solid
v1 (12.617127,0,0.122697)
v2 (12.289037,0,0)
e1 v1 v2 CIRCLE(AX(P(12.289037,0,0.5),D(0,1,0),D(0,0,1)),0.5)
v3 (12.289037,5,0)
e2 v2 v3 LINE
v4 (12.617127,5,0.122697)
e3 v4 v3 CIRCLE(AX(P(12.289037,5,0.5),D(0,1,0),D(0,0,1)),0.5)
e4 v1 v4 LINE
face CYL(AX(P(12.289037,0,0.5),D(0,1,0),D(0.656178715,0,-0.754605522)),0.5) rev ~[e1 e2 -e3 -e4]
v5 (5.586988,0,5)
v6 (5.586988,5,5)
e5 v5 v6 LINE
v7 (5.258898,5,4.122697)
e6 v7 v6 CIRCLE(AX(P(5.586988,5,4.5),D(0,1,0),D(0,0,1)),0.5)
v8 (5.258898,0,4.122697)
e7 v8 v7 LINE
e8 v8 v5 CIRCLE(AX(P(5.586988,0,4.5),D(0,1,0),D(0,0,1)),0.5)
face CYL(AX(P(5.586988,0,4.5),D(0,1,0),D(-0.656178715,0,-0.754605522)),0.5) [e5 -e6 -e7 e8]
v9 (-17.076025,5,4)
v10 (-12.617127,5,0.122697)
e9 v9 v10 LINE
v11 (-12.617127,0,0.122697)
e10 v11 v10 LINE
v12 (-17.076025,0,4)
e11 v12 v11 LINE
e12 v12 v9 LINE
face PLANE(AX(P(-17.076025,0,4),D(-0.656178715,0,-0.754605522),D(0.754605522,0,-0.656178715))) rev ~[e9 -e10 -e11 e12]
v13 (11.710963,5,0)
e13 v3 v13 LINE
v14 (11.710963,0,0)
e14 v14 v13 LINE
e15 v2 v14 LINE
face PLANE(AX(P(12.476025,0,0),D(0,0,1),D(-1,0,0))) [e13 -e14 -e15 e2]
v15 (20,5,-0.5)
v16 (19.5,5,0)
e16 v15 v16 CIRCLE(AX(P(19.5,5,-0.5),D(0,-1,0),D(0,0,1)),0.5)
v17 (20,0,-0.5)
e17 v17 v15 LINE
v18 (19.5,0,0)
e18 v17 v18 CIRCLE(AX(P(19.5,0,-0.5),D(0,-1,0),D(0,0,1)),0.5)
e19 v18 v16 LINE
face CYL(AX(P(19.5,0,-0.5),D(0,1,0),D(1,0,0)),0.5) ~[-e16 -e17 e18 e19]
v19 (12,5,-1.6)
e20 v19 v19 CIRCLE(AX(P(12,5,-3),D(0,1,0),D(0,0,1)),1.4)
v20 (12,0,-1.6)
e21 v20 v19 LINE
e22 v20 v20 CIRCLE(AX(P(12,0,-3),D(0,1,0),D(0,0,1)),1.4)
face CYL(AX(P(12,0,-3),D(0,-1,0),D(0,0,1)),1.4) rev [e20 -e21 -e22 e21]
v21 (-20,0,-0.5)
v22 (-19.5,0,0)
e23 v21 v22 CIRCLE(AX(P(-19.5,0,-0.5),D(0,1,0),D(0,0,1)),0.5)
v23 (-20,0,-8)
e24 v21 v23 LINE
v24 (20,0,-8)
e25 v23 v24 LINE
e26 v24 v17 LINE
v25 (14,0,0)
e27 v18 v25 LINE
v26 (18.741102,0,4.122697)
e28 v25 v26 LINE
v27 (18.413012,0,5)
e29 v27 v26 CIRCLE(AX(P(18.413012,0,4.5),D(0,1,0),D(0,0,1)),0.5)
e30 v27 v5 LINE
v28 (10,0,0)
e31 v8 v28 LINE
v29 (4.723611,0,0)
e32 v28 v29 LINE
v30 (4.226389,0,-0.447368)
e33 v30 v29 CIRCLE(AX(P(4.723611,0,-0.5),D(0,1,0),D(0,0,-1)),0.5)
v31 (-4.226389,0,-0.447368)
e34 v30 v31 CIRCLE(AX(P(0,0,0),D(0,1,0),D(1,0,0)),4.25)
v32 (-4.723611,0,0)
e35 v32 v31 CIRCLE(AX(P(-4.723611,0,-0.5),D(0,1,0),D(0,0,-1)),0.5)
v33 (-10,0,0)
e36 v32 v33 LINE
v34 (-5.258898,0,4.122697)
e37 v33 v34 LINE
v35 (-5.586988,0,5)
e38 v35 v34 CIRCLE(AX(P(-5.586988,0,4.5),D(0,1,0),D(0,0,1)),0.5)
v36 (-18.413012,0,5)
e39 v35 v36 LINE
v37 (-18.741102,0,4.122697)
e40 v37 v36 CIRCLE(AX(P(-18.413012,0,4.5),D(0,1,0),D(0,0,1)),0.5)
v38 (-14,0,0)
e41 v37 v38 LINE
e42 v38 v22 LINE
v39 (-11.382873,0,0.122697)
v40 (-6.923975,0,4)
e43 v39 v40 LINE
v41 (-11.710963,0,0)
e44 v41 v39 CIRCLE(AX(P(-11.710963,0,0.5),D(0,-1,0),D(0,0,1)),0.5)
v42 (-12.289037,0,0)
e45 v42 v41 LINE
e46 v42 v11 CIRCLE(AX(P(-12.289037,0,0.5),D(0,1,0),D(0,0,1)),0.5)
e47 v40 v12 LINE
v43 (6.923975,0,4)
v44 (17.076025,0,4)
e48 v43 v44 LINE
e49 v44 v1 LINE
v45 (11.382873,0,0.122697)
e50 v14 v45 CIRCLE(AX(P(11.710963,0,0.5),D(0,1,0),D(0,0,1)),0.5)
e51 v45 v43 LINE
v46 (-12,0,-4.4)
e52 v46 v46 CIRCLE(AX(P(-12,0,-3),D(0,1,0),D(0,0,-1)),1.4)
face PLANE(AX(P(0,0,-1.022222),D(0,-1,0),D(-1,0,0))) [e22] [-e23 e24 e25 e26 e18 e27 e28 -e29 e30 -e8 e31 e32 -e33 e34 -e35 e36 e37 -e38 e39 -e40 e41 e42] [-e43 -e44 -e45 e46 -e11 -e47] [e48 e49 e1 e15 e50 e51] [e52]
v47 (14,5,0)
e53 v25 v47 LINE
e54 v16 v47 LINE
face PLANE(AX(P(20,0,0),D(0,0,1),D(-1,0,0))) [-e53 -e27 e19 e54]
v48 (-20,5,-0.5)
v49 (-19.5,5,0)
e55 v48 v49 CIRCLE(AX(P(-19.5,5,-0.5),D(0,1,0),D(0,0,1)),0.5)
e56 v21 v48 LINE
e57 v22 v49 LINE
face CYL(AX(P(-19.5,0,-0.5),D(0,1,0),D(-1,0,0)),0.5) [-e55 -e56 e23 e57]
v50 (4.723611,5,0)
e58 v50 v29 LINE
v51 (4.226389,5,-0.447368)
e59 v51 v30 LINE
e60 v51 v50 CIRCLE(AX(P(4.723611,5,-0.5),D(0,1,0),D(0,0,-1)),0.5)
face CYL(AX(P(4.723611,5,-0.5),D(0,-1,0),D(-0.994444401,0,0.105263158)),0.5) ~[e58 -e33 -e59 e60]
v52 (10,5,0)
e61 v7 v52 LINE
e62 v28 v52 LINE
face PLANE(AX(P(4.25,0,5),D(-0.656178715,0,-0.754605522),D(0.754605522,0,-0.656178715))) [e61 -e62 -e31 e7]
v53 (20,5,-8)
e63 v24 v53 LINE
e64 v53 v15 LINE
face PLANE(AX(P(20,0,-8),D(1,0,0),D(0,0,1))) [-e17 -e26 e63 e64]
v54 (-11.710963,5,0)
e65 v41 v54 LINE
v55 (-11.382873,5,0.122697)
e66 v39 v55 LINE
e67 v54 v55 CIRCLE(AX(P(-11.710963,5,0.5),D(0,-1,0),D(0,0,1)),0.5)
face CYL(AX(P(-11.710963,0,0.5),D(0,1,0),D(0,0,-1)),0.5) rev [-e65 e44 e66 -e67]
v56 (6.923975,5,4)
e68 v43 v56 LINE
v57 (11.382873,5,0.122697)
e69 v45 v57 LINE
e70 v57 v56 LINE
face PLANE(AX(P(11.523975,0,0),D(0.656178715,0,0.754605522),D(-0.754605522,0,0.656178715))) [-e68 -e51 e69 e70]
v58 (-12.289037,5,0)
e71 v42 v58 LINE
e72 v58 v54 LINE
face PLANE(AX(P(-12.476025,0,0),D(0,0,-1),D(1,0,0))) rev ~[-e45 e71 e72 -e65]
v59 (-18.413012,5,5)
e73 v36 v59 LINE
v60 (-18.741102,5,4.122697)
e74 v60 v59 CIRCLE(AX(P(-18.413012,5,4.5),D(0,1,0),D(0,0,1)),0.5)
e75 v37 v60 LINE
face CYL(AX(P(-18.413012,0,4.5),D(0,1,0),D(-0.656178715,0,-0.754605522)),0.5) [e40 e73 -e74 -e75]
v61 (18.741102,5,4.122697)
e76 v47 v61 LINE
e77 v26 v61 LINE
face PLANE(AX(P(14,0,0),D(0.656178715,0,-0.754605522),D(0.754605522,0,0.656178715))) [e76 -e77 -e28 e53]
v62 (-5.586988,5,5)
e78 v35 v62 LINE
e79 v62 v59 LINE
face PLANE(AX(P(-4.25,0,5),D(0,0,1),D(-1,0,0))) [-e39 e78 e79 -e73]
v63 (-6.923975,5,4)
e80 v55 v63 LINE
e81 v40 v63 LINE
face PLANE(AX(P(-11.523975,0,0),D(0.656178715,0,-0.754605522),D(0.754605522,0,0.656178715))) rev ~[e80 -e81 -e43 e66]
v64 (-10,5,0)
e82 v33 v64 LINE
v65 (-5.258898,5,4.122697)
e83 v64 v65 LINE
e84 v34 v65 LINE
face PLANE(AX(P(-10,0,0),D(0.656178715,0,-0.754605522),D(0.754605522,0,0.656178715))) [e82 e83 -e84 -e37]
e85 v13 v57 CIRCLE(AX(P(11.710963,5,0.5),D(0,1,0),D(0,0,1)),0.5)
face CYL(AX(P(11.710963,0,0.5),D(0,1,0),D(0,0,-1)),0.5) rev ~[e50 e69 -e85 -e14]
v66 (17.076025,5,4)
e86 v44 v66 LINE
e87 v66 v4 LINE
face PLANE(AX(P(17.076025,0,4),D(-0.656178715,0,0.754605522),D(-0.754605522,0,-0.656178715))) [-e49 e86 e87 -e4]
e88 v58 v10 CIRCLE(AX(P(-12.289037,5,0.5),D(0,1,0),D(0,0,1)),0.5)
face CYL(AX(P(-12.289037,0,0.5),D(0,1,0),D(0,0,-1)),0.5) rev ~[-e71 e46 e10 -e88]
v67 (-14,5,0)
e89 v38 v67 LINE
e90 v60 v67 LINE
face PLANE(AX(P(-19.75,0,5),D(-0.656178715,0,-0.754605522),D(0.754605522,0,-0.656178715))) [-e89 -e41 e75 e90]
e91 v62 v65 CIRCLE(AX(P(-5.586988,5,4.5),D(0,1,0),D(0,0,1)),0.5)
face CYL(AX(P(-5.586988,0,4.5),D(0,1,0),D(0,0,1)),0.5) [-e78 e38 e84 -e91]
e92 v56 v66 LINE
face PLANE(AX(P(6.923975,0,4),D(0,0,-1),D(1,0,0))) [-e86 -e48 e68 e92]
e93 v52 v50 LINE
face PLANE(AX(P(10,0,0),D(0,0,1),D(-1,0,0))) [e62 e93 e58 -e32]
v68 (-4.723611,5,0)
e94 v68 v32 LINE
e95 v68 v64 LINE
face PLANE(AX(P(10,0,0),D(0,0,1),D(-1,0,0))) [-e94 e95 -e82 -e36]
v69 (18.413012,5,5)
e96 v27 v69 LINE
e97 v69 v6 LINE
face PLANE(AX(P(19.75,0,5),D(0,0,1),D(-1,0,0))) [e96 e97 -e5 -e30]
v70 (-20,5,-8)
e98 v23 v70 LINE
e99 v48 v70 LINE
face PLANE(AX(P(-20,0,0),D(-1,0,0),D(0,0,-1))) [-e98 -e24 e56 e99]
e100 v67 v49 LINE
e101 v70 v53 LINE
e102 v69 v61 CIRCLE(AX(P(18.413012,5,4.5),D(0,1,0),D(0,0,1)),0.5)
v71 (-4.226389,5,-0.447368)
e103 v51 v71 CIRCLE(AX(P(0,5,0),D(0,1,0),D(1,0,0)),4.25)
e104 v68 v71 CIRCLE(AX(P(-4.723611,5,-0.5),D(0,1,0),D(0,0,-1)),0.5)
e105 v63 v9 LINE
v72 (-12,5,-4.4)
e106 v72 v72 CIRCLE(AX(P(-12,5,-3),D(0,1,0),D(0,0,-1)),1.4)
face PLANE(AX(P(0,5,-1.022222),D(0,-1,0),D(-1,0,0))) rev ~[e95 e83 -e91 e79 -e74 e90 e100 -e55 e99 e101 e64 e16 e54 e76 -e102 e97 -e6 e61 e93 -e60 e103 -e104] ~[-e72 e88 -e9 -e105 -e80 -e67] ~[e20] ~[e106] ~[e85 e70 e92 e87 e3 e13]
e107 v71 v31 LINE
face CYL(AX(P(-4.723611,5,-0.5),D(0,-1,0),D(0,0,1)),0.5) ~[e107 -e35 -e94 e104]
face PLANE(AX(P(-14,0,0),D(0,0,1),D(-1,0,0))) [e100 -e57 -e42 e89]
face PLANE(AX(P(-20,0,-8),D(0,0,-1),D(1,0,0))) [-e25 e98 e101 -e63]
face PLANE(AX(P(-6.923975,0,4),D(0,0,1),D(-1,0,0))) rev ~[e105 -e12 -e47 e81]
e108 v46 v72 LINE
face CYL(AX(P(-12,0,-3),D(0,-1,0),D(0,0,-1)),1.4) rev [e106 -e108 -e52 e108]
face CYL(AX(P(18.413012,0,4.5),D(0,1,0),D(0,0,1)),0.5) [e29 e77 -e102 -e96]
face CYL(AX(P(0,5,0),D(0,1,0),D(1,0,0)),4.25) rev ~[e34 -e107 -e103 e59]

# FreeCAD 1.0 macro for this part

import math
import FreeCAD as App
import Part
import Sketcher
from FreeCAD import Vector
Q = App.Units.Quantity


def edges_at(feature, points):
    """Names of the edges that pass closest to the given points."""
    edges = feature.Shape.Edges
    near = lambda p: min(range(len(edges)), key=lambda i: edges[i].distToShape(Part.Vertex(*p))[0])
    return sorted({f"Edge{near(p) + 1}" for p in points})


def add_polygon(sketch, points):
    """Adds a closed chain of lines whose ends are joined by coincident constraints."""
    first, n = sketch.GeometryCount, len(points)
    for a, b in zip(points, points[1:] + points[:1]):
        sketch.addGeometry(Part.LineSegment(App.Vector(*a, 0), App.Vector(*b, 0)), False)
    for i in range(n):
        sketch.addConstraint(Sketcher.Constraint("Coincident", first + i, 2, first + (i + 1) % n, 1))

doc = App.newDocument("Part")
body = doc.addObject("PartDesign::Body", "Body")

# Sketch on XZ plane
sketch1 = body.newObject("Sketcher::SketchObject", "Sketch")
sketch1.AttachmentSupport = (doc.getObject("XZ_Plane"), [""])
sketch1.MapMode = "FlatFace"
add_polygon(sketch1, [(20, -8), (-20, -8), (-20, 0), (-14, 0), (-19.75, 5), (-4.25, 5), (-10, 0), (10, 0), (4.25, 5), (19.75, 5), (14, 0), (20, 0)])  # lines 0-11
add_polygon(sketch1, [(12.476025, 0), (17.076025, 4), (6.923975, 4), (11.523975, 0)])  # lines 12-15
add_polygon(sketch1, [(-12.476025, 0), (-11.523975, 0), (-6.923975, 4), (-17.076025, 4)])  # lines 16-19
sketch1.addGeometry(Part.Circle(Vector(12, -3, 0), Vector(0, 0, 1), 1.4), False)  # 20
sketch1.addGeometry(Part.Circle(Vector(-12, -3, 0), Vector(0, 0, 1), 1.4), False)  # 21
sketch1.addConstraint([
    Sketcher.Constraint("Horizontal", 0),
    Sketcher.Constraint("Vertical", 1),
    Sketcher.Constraint("Horizontal", 2),
    Sketcher.Constraint("Horizontal", 4),
    Sketcher.Constraint("Horizontal", 6),
    Sketcher.Constraint("Horizontal", 8),
    Sketcher.Constraint("Horizontal", 10),
    Sketcher.Constraint("Vertical", 11),
    Sketcher.Constraint("Horizontal", 13),
    Sketcher.Constraint("Horizontal", 15),
    Sketcher.Constraint("Horizontal", 16),
    Sketcher.Constraint("Horizontal", 18),
    Sketcher.Constraint("Equal", 20, 21),
    Sketcher.Constraint("Symmetric", 5, 2, 6, 2, -1, 1),
    Sketcher.Constraint("Symmetric", 2, 2, 9, 2, -1, 1),
    Sketcher.Constraint("Symmetric", 14, 2, 16, 2, -1, 1),
    Sketcher.Constraint("Symmetric", 20, 3, 21, 3, -2),
    Sketcher.Constraint("Symmetric", 4, 2, 7, 2, -2),
    Sketcher.Constraint("Symmetric", 1, 2, 10, 2, -2),
    Sketcher.Constraint("Symmetric", 13, 2, 17, 2, -2),
    Sketcher.Constraint("Symmetric", 15, 2, 19, 2, -2),
    Sketcher.Constraint("Parallel", 3, 7),
    Sketcher.Constraint("Parallel", 5, 9),
    Sketcher.Constraint("Parallel", 9, 12),
    Sketcher.Constraint("Parallel", 7, 14),
    Sketcher.Constraint("Parallel", 14, 19),
    Sketcher.Constraint("Diameter", 20, Q("2.8 mm")),
    Sketcher.Constraint("DistanceX", 0, 2, 0, 1, Q("40 mm")),
    Sketcher.Constraint("DistanceX", 2, 1, 2, 2, Q("6 mm")),
    Sketcher.Constraint("DistanceX", 6, 1, 6, 2, Q("20 mm")),
    Sketcher.Constraint("DistanceY", 1, 1, 1, 2, Q("8 mm")),
    Sketcher.Constraint("DistanceX", 4, 1, 4, 2, Q("15.5 mm")),
    Sketcher.Constraint("DistanceX", -1, 1, 20, 3, Q("12 mm")),
    Sketcher.Constraint("DistanceY", 20, 3, -1, 1, Q("3 mm")),
    Sketcher.Constraint("DistanceY", -1, 1, 3, 2, Q("5 mm")),
    Sketcher.Constraint("DistanceY", -1, 1, 12, 2, Q("4 mm")),
    Sketcher.Constraint("DistanceX", 13, 2, 13, 1, Q("10.15205 mm")),
    Sketcher.Constraint("DistanceX", -1, 1, 12, 2, Q("17.076025 mm")),
])
pad1 = body.newObject("PartDesign::Pad", "Pad")
pad1.Profile = sketch1
pad1.Length = 5
pad1.Reversed = True

# Sketch on XZ plane
sketch2 = body.newObject("Sketcher::SketchObject", "Sketch001")
sketch2.AttachmentSupport = (doc.getObject("XZ_Plane"), [""])
sketch2.MapMode = "FlatFace"
sketch2.AttachmentOffset = App.Placement(Vector(0, 0, -5), App.Rotation())
sketch2.addGeometry([
    Part.LineSegment(Vector(-4.25, 0, 0), Vector(4.25, 0, 0)),
    Part.ArcOfCircle(Part.Circle(Vector(0, 0, 0), Vector(0, 0, 1), 4.25), math.radians(180), math.radians(360)),
], False)
sketch2.addConstraint([
    Sketcher.Constraint("Coincident", 0, 1, 1, 1),
    Sketcher.Constraint("Coincident", 1, 2, 0, 2),
    Sketcher.Constraint("Horizontal", 0),
    Sketcher.Constraint("Coincident", 1, 3, -1, 1),
    Sketcher.Constraint("PointOnObject", 0, 1, -1),
    Sketcher.Constraint("Radius", 1, Q("4.25 mm")),
])
pocket1 = body.newObject("PartDesign::Pocket", "Pocket")
pocket1.Profile = sketch2
pocket1.Type = "ThroughAll"
pocket1.Reversed = True
doc.recompute()

fillet = body.newObject("PartDesign::Fillet", "Fillet")
fillet.Base = (pocket1, edges_at(pocket1, [
    (20, 2.5, 0),
    (19.75, 2.5, 5),
    (4.25, 2.5, 5),
    (-4.25, 2.5, 5),
    (-19.75, 2.5, 5),
    (-20, 2.5, 0),
    (11.524, 2.5, 0),
    (12.476, 2.5, 0),
    (-12.476, 2.5, 0),
    (-11.524, 2.5, 0),
    (-4.25, 2.5, 0),
    (4.25, 2.5, 0),
]))
fillet.Radius = 0.5

doc.recompute()
